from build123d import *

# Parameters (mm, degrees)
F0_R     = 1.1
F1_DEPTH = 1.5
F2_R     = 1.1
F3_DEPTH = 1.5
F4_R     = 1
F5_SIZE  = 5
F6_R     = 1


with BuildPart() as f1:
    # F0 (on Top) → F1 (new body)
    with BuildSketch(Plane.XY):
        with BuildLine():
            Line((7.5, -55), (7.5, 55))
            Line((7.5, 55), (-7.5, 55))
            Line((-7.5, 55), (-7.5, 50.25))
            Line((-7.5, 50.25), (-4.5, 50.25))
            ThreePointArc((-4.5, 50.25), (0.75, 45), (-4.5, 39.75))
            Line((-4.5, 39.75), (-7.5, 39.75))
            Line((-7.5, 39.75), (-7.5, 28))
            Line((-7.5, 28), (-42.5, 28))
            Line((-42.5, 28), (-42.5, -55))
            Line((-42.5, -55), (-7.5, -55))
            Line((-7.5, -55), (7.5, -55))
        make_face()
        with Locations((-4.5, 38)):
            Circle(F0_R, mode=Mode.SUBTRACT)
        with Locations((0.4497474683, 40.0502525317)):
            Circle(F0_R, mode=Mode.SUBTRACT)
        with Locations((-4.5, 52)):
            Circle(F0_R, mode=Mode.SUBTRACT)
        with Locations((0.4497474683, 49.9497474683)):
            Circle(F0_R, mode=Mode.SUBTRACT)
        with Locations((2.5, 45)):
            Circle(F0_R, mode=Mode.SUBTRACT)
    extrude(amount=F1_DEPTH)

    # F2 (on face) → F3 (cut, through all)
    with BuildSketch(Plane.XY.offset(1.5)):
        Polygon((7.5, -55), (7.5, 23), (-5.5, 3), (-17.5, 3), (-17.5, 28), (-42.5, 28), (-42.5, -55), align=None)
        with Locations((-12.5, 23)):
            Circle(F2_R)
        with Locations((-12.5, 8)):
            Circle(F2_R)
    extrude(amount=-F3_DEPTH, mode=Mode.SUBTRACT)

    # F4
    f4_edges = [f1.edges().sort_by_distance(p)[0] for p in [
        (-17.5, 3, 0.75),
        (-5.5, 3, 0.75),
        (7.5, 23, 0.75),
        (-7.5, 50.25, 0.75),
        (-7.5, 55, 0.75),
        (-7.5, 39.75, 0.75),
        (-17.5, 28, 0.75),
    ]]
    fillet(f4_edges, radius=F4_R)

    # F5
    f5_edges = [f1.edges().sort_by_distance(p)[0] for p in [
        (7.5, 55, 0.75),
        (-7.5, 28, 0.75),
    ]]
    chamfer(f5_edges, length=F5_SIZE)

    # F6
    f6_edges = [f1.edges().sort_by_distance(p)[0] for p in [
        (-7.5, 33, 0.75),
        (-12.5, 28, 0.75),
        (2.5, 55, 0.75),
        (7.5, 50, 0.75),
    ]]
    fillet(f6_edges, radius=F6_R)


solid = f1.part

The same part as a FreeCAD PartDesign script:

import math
import FreeCAD as App
import Part
import Sketcher


def edges_at(feature, points):
    """Names of the edges that pass closest to the given points."""
    edges = feature.Shape.Edges
    near = lambda p: min(range(len(edges)), key=lambda i: edges[i].distToShape(Part.Vertex(*p))[0])
    return sorted({f"Edge{near(p) + 1}" for p in points})

doc = App.newDocument("Part")
body = doc.addObject("PartDesign::Body", "Body")

sketch1 = body.newObject("Sketcher::SketchObject", "Sketch")
sketch1.AttachmentSupport = (doc.getObject("XY_Plane"), [""])
sketch1.MapMode = "FlatFace"
sketch1.addGeometry(Part.LineSegment(App.Vector(7.5, -55, 0), App.Vector(7.5, 55, 0)), False)
sketch1.addGeometry(Part.LineSegment(App.Vector(7.5, 55, 0), App.Vector(-7.5, 55, 0)), False)
sketch1.addGeometry(Part.LineSegment(App.Vector(-7.5, 55, 0), App.Vector(-7.5, 50.2, 0)), False)
sketch1.addGeometry(Part.LineSegment(App.Vector(-7.5, 50.2, 0), App.Vector(-4.5, 50.2, 0)), False)
sketch1.addGeometry(Part.ArcOfCircle(Part.Circle(App.Vector(-4.5, 45, 0), App.Vector(0, 0, 1), 5.2), math.radians(-90), math.radians(90)), False)
sketch1.addGeometry(Part.LineSegment(App.Vector(-4.5, 39.8, 0), App.Vector(-7.5, 39.8, 0)), False)
sketch1.addGeometry(Part.LineSegment(App.Vector(-7.5, 39.8, 0), App.Vector(-7.5, 28, 0)), False)
sketch1.addGeometry(Part.LineSegment(App.Vector(-7.5, 28, 0), App.Vector(-42.5, 28, 0)), False)
sketch1.addGeometry(Part.LineSegment(App.Vector(-42.5, 28, 0), App.Vector(-42.5, -55, 0)), False)
sketch1.addGeometry(Part.LineSegment(App.Vector(-42.5, -55, 0), App.Vector(7.5, -55, 0)), False)
sketch1.addGeometry(Part.Circle(App.Vector(-4.5, 38, 0), App.Vector(0, 0, 1), 1.1), False)
sketch1.addGeometry(Part.Circle(App.Vector(0.4, 40.1, 0), App.Vector(0, 0, 1), 1.1), False)
sketch1.addGeometry(Part.Circle(App.Vector(-4.5, 52, 0), App.Vector(0, 0, 1), 1.1), False)
sketch1.addGeometry(Part.Circle(App.Vector(2.5, 45, 0), App.Vector(0, 0, 1), 1.1), False)
sketch1.addGeometry(Part.Circle(App.Vector(0.4, 49.9, 0), App.Vector(0, 0, 1), 1.1), False)
sketch1.addConstraint(Sketcher.Constraint("Coincident", 0, 2, 1, 1))
sketch1.addConstraint(Sketcher.Constraint("Coincident", 1, 2, 2, 1))
sketch1.addConstraint(Sketcher.Constraint("Coincident", 2, 2, 3, 1))
sketch1.addConstraint(Sketcher.Constraint("Tangent", 3, 2, 4, 2))
sketch1.addConstraint(Sketcher.Constraint("Tangent", 4, 1, 5, 1))
sketch1.addConstraint(Sketcher.Constraint("Coincident", 5, 2, 6, 1))
sketch1.addConstraint(Sketcher.Constraint("Coincident", 6, 2, 7, 1))
sketch1.addConstraint(Sketcher.Constraint("Coincident", 7, 2, 8, 1))
sketch1.addConstraint(Sketcher.Constraint("Coincident", 8, 2, 9, 1))
sketch1.addConstraint(Sketcher.Constraint("Coincident", 9, 2, 0, 1))
sketch1.addConstraint(Sketcher.Constraint("Vertical", 0))
sketch1.addConstraint(Sketcher.Constraint("Horizontal", 1))
sketch1.addConstraint(Sketcher.Constraint("Vertical", 2))
sketch1.addConstraint(Sketcher.Constraint("Horizontal", 3))
sketch1.addConstraint(Sketcher.Constraint("Horizontal", 5))
sketch1.addConstraint(Sketcher.Constraint("Vertical", 6))
sketch1.addConstraint(Sketcher.Constraint("Horizontal", 7))
sketch1.addConstraint(Sketcher.Constraint("Vertical", 8))
sketch1.addConstraint(Sketcher.Constraint("Horizontal", 9))
sketch1.addConstraint(Sketcher.Constraint("Equal", 10, 11))
sketch1.addConstraint(Sketcher.Constraint("Equal", 11, 12))
sketch1.addConstraint(Sketcher.Constraint("Equal", 12, 13))
sketch1.addConstraint(Sketcher.Constraint("Equal", 13, 14))
sketch1.addConstraint(Sketcher.Constraint("Symmetric", 1, 2, 9, 2, -1, 1))
sketch1.addConstraint(Sketcher.Constraint("Horizontal", 4, 3, 13, 3))
sketch1.addConstraint(Sketcher.Constraint("Vertical", 4, 3, 10, 3))
sketch1.addConstraint(Sketcher.Constraint("Vertical", 10, 3, 12, 3))
sketch1.addConstraint(Sketcher.Constraint("Vertical", 11, 3, 14, 3))
sketch1.addConstraint(Sketcher.Constraint("Vertical", 2, 2, 5, 2))
sketch1.addConstraint(Sketcher.Constraint("Diameter", 10, 2.2))
sketch1.addConstraint(Sketcher.Constraint("DistanceX", 1, 2, 1, 1, 15.0))
sketch1.addConstraint(Sketcher.Constraint("DistanceX", 3, 1, 3, 2, 3.0))
sketch1.addConstraint(Sketcher.Constraint("DistanceX", 7, 2, 7, 1, 35.0))
sketch1.addConstraint(Sketcher.Constraint("DistanceY", 0, 1, 0, 2, 110.0))
sketch1.addConstraint(Sketcher.Constraint("DistanceY", 8, 2, 8, 1, 83.0))
sketch1.addConstraint(Sketcher.Constraint("Radius", 4, 5.25))
sketch1.addConstraint(Sketcher.Constraint("DistanceY", -1, 1, 4, 3, 45.0))
sketch1.addConstraint(Sketcher.Constraint("DistanceY", -1, 1, 10, 3, 38.0))
sketch1.addConstraint(Sketcher.Constraint("DistanceY", -1, 1, 12, 3, 52.0))
sketch1.addConstraint(Sketcher.Constraint("DistanceX", 4, 3, 13, 3, 7.0))
sketch1.addConstraint(Sketcher.Constraint("DistanceX", -1, 1, 11, 3, 0.449747))
sketch1.addConstraint(Sketcher.Constraint("DistanceY", -1, 1, 11, 3, 40.050253))
sketch1.addConstraint(Sketcher.Constraint("DistanceY", -1, 1, 14, 3, 49.949747))
pad1 = body.newObject("PartDesign::Pad", "Pad")
pad1.Profile = sketch1
pad1.Length = 1.5

sketch2 = body.newObject("Sketcher::SketchObject", "Sketch001")
sketch2.AttachmentSupport = (doc.getObject("XY_Plane"), [""])
sketch2.MapMode = "FlatFace"
sketch2.AttachmentOffset = App.Placement(App.Vector(0, 0, 1.5), App.Rotation())
sketch2.addGeometry(Part.LineSegment(App.Vector(7.5, -55, 0), App.Vector(7.5, 23, 0)), False)
sketch2.addGeometry(Part.LineSegment(App.Vector(7.5, 23, 0), App.Vector(-5.5, 3, 0)), False)
sketch2.addGeometry(Part.LineSegment(App.Vector(-5.5, 3, 0), App.Vector(-17.5, 3, 0)), False)
sketch2.addGeometry(Part.LineSegment(App.Vector(-17.5, 3, 0), App.Vector(-17.5, 28, 0)), False)
sketch2.addGeometry(Part.LineSegment(App.Vector(-17.5, 28, 0), App.Vector(-42.5, 28, 0)), False)
sketch2.addGeometry(Part.LineSegment(App.Vector(-42.5, 28, 0), App.Vector(-42.5, -55, 0)), False)
sketch2.addGeometry(Part.LineSegment(App.Vector(-42.5, -55, 0), App.Vector(7.5, -55, 0)), False)
sketch2.addGeometry(Part.Circle(App.Vector(-12.5, 23, 0), App.Vector(0, 0, 1), 1.1), False)
sketch2.addGeometry(Part.Circle(App.Vector(-12.5, 8, 0), App.Vector(0, 0, 1), 1.1), False)
sketch2.addConstraint(Sketcher.Constraint("Coincident", 0, 2, 1, 1))
sketch2.addConstraint(Sketcher.Constraint("Coincident", 1, 2, 2, 1))
sketch2.addConstraint(Sketcher.Constraint("Coincident", 2, 2, 3, 1))
sketch2.addConstraint(Sketcher.Constraint("Coincident", 3, 2, 4, 1))
sketch2.addConstraint(Sketcher.Constraint("Coincident", 4, 2, 5, 1))
sketch2.addConstraint(Sketcher.Constraint("Coincident", 5, 2, 6, 1))
sketch2.addConstraint(Sketcher.Constraint("Coincident", 6, 2, 0, 1))
sketch2.addConstraint(Sketcher.Constraint("Vertical", 0))
sketch2.addConstraint(Sketcher.Constraint("Horizontal", 2))
sketch2.addConstraint(Sketcher.Constraint("Vertical", 3))
sketch2.addConstraint(Sketcher.Constraint("Horizontal", 4))
sketch2.addConstraint(Sketcher.Constraint("Vertical", 5))
sketch2.addConstraint(Sketcher.Constraint("Horizontal", 6))
sketch2.addConstraint(Sketcher.Constraint("Equal", 7, 8))
sketch2.addConstraint(Sketcher.Constraint("Horizontal", 7, 3, 0, 2))
sketch2.addConstraint(Sketcher.Constraint("Vertical", 7, 3, 8, 3))
sketch2.addConstraint(Sketcher.Constraint("Equal", 4, 3))
sketch2.addConstraint(Sketcher.Constraint("Diameter", 7, 2.2))
sketch2.addConstraint(Sketcher.Constraint("DistanceX", 2, 2, 2, 1, 12.0))
sketch2.addConstraint(Sketcher.Constraint("DistanceX", 4, 2, 4, 1, 25.0))
sketch2.addConstraint(Sketcher.Constraint("DistanceX", 6, 1, 6, 2, 50.0))
sketch2.addConstraint(Sketcher.Constraint("DistanceY", 0, 1, 0, 2, 78.0))
sketch2.addConstraint(Sketcher.Constraint("DistanceY", 5, 2, 5, 1, 83.0))
sketch2.addConstraint(Sketcher.Constraint("DistanceY", -1, 1, 7, 3, 23.0))
sketch2.addConstraint(Sketcher.Constraint("DistanceY", -1, 1, 8, 3, 8.0))
sketch2.addConstraint(Sketcher.Constraint("DistanceX", 7, 3, 0, 2, 20.0))
sketch2.addConstraint(Sketcher.Constraint("DistanceX", 7, 3, -1, 1, 12.5))
pocket1 = body.newObject("PartDesign::Pocket", "Pocket")
pocket1.Profile = sketch2
pocket1.Type = "ThroughAll"
doc.recompute()

fillet = body.newObject("PartDesign::Fillet", "Fillet")
fillet.Base = (pocket1, edges_at(pocket1, [
    (-17.5, 3, 0.75),
    (-5.5, 3, 0.75),
    (7.5, 23, 0.75),
    (-7.5, 50.25, 0.75),
    (-7.5, 55, 0.75),
    (-7.5, 39.75, 0.75),
    (-17.5, 28, 0.75),
]))
fillet.Radius = 1
doc.recompute()

chamfer = body.newObject("PartDesign::Chamfer", "Chamfer")
chamfer.Base = (fillet, edges_at(fillet, [(7.5, 55, 0.75), (-7.5, 28, 0.75)]))
chamfer.Size = 5
doc.recompute()

fillet2 = body.newObject("PartDesign::Fillet", "Fillet001")
fillet2.Base = (chamfer, edges_at(chamfer, [
    (-7.5, 33, 0.75),
    (-12.5, 28, 0.75),
    (2.5, 55, 0.75),
    (7.5, 50, 0.75),
]))
fillet2.Radius = 1

doc.recompute()
